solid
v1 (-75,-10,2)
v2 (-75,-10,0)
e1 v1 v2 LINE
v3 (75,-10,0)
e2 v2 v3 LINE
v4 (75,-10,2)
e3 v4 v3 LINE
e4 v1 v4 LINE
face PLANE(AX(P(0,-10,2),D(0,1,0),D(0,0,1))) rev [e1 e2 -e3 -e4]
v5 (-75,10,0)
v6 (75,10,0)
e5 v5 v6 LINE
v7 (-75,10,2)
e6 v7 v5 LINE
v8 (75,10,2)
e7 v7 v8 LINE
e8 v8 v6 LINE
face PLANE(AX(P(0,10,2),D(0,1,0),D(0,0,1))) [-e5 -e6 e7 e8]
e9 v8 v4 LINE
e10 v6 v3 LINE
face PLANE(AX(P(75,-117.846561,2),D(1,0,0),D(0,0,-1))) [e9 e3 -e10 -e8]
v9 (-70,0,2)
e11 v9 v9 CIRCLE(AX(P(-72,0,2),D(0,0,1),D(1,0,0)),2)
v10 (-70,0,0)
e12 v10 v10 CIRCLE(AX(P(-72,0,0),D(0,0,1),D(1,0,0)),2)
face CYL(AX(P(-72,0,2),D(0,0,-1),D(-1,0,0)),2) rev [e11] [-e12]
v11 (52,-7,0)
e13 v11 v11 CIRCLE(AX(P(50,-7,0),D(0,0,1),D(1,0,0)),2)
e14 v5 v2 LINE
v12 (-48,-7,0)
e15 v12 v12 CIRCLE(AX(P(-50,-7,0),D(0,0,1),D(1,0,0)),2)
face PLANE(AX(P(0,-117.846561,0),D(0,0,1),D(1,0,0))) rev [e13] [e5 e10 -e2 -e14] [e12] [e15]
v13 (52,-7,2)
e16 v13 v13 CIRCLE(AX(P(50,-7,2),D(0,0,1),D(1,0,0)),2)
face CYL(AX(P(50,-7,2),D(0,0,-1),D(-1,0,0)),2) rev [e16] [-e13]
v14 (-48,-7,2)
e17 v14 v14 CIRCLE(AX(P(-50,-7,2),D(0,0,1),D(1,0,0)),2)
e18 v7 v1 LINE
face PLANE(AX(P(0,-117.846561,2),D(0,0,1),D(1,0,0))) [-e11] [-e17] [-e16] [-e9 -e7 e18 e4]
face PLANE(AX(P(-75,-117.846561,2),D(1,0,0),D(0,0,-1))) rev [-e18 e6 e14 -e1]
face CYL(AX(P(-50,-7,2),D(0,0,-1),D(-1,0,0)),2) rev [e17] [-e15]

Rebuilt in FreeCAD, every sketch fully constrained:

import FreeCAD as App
import Part
import Sketcher
Q = App.Units.Quantity


def add_polygon(sketch, points):
    """Adds a closed chain of lines whose ends are joined by coincident constraints."""
    first, n = sketch.GeometryCount, len(points)
    for a, b in zip(points, points[1:] + points[:1]):
        sketch.addGeometry(Part.LineSegment(App.Vector(*a, 0), App.Vector(*b, 0)), False)
    for i in range(n):
        sketch.addConstraint(Sketcher.Constraint("Coincident", first + i, 2, first + (i + 1) % n, 1))

doc = App.newDocument("Part")
body = doc.addObject("PartDesign::Body", "Body")

# Sketch on XY plane
sketch1 = doc.addObject("Sketcher::SketchObject", "Sketch")
body.addObject(sketch1)
sketch1.AttachmentSupport = (doc.XY_Plane, [""])
sketch1.MapMode = "FlatFace"
add_polygon(sketch1, [(-75, 10), (-75, -10), (75, -10), (75, 10)])  # lines 0-3
sketch1.addGeometry(Part.Circle(App.Vector(-50, -7, 0), App.Vector(0, 0, 1), 2), False)  # 4
sketch1.addGeometry(Part.Circle(App.Vector(50, -7, 0), App.Vector(0, 0, 1), 2), False)  # 5
sketch1.addGeometry(Part.Circle(App.Vector(-72, 0, 0), App.Vector(0, 0, 1), 2), False)  # 6
sketch1.addConstraint([
    Sketcher.Constraint("Vertical", 0),
    Sketcher.Constraint("Horizontal", 1),
    Sketcher.Constraint("Vertical", 2),
    Sketcher.Constraint("Horizontal", 3),
    Sketcher.Constraint("Equal", 4, 5),
    Sketcher.Constraint("Equal", 5, 6),
    Sketcher.Constraint("Symmetric", 0, 2, 2, 2, -1, 1),
    Sketcher.Constraint("Symmetric", 4, 3, 5, 3, -2),
    Sketcher.Constraint("PointOnObject", 6, 3, -1),
    Sketcher.Constraint("Diameter", 4, Q("4 mm")),
    Sketcher.Constraint("DistanceX", 1, 1, 1, 2, Q("150 mm")),
    Sketcher.Constraint("DistanceY", 0, 2, 0, 1, Q("20 mm")),
    Sketcher.Constraint("DistanceX", 4, 3, -1, 1, Q("50 mm")),
    Sketcher.Constraint("DistanceY", 4, 3, -1, 1, Q("7 mm")),
    Sketcher.Constraint("DistanceX", 6, 3, -1, 1, Q("72 mm")),
])
pad1 = doc.addObject("PartDesign::Pad", "Pad")
body.addObject(pad1)
pad1.Profile = sketch1
pad1.Length = 2

doc.recompute()
